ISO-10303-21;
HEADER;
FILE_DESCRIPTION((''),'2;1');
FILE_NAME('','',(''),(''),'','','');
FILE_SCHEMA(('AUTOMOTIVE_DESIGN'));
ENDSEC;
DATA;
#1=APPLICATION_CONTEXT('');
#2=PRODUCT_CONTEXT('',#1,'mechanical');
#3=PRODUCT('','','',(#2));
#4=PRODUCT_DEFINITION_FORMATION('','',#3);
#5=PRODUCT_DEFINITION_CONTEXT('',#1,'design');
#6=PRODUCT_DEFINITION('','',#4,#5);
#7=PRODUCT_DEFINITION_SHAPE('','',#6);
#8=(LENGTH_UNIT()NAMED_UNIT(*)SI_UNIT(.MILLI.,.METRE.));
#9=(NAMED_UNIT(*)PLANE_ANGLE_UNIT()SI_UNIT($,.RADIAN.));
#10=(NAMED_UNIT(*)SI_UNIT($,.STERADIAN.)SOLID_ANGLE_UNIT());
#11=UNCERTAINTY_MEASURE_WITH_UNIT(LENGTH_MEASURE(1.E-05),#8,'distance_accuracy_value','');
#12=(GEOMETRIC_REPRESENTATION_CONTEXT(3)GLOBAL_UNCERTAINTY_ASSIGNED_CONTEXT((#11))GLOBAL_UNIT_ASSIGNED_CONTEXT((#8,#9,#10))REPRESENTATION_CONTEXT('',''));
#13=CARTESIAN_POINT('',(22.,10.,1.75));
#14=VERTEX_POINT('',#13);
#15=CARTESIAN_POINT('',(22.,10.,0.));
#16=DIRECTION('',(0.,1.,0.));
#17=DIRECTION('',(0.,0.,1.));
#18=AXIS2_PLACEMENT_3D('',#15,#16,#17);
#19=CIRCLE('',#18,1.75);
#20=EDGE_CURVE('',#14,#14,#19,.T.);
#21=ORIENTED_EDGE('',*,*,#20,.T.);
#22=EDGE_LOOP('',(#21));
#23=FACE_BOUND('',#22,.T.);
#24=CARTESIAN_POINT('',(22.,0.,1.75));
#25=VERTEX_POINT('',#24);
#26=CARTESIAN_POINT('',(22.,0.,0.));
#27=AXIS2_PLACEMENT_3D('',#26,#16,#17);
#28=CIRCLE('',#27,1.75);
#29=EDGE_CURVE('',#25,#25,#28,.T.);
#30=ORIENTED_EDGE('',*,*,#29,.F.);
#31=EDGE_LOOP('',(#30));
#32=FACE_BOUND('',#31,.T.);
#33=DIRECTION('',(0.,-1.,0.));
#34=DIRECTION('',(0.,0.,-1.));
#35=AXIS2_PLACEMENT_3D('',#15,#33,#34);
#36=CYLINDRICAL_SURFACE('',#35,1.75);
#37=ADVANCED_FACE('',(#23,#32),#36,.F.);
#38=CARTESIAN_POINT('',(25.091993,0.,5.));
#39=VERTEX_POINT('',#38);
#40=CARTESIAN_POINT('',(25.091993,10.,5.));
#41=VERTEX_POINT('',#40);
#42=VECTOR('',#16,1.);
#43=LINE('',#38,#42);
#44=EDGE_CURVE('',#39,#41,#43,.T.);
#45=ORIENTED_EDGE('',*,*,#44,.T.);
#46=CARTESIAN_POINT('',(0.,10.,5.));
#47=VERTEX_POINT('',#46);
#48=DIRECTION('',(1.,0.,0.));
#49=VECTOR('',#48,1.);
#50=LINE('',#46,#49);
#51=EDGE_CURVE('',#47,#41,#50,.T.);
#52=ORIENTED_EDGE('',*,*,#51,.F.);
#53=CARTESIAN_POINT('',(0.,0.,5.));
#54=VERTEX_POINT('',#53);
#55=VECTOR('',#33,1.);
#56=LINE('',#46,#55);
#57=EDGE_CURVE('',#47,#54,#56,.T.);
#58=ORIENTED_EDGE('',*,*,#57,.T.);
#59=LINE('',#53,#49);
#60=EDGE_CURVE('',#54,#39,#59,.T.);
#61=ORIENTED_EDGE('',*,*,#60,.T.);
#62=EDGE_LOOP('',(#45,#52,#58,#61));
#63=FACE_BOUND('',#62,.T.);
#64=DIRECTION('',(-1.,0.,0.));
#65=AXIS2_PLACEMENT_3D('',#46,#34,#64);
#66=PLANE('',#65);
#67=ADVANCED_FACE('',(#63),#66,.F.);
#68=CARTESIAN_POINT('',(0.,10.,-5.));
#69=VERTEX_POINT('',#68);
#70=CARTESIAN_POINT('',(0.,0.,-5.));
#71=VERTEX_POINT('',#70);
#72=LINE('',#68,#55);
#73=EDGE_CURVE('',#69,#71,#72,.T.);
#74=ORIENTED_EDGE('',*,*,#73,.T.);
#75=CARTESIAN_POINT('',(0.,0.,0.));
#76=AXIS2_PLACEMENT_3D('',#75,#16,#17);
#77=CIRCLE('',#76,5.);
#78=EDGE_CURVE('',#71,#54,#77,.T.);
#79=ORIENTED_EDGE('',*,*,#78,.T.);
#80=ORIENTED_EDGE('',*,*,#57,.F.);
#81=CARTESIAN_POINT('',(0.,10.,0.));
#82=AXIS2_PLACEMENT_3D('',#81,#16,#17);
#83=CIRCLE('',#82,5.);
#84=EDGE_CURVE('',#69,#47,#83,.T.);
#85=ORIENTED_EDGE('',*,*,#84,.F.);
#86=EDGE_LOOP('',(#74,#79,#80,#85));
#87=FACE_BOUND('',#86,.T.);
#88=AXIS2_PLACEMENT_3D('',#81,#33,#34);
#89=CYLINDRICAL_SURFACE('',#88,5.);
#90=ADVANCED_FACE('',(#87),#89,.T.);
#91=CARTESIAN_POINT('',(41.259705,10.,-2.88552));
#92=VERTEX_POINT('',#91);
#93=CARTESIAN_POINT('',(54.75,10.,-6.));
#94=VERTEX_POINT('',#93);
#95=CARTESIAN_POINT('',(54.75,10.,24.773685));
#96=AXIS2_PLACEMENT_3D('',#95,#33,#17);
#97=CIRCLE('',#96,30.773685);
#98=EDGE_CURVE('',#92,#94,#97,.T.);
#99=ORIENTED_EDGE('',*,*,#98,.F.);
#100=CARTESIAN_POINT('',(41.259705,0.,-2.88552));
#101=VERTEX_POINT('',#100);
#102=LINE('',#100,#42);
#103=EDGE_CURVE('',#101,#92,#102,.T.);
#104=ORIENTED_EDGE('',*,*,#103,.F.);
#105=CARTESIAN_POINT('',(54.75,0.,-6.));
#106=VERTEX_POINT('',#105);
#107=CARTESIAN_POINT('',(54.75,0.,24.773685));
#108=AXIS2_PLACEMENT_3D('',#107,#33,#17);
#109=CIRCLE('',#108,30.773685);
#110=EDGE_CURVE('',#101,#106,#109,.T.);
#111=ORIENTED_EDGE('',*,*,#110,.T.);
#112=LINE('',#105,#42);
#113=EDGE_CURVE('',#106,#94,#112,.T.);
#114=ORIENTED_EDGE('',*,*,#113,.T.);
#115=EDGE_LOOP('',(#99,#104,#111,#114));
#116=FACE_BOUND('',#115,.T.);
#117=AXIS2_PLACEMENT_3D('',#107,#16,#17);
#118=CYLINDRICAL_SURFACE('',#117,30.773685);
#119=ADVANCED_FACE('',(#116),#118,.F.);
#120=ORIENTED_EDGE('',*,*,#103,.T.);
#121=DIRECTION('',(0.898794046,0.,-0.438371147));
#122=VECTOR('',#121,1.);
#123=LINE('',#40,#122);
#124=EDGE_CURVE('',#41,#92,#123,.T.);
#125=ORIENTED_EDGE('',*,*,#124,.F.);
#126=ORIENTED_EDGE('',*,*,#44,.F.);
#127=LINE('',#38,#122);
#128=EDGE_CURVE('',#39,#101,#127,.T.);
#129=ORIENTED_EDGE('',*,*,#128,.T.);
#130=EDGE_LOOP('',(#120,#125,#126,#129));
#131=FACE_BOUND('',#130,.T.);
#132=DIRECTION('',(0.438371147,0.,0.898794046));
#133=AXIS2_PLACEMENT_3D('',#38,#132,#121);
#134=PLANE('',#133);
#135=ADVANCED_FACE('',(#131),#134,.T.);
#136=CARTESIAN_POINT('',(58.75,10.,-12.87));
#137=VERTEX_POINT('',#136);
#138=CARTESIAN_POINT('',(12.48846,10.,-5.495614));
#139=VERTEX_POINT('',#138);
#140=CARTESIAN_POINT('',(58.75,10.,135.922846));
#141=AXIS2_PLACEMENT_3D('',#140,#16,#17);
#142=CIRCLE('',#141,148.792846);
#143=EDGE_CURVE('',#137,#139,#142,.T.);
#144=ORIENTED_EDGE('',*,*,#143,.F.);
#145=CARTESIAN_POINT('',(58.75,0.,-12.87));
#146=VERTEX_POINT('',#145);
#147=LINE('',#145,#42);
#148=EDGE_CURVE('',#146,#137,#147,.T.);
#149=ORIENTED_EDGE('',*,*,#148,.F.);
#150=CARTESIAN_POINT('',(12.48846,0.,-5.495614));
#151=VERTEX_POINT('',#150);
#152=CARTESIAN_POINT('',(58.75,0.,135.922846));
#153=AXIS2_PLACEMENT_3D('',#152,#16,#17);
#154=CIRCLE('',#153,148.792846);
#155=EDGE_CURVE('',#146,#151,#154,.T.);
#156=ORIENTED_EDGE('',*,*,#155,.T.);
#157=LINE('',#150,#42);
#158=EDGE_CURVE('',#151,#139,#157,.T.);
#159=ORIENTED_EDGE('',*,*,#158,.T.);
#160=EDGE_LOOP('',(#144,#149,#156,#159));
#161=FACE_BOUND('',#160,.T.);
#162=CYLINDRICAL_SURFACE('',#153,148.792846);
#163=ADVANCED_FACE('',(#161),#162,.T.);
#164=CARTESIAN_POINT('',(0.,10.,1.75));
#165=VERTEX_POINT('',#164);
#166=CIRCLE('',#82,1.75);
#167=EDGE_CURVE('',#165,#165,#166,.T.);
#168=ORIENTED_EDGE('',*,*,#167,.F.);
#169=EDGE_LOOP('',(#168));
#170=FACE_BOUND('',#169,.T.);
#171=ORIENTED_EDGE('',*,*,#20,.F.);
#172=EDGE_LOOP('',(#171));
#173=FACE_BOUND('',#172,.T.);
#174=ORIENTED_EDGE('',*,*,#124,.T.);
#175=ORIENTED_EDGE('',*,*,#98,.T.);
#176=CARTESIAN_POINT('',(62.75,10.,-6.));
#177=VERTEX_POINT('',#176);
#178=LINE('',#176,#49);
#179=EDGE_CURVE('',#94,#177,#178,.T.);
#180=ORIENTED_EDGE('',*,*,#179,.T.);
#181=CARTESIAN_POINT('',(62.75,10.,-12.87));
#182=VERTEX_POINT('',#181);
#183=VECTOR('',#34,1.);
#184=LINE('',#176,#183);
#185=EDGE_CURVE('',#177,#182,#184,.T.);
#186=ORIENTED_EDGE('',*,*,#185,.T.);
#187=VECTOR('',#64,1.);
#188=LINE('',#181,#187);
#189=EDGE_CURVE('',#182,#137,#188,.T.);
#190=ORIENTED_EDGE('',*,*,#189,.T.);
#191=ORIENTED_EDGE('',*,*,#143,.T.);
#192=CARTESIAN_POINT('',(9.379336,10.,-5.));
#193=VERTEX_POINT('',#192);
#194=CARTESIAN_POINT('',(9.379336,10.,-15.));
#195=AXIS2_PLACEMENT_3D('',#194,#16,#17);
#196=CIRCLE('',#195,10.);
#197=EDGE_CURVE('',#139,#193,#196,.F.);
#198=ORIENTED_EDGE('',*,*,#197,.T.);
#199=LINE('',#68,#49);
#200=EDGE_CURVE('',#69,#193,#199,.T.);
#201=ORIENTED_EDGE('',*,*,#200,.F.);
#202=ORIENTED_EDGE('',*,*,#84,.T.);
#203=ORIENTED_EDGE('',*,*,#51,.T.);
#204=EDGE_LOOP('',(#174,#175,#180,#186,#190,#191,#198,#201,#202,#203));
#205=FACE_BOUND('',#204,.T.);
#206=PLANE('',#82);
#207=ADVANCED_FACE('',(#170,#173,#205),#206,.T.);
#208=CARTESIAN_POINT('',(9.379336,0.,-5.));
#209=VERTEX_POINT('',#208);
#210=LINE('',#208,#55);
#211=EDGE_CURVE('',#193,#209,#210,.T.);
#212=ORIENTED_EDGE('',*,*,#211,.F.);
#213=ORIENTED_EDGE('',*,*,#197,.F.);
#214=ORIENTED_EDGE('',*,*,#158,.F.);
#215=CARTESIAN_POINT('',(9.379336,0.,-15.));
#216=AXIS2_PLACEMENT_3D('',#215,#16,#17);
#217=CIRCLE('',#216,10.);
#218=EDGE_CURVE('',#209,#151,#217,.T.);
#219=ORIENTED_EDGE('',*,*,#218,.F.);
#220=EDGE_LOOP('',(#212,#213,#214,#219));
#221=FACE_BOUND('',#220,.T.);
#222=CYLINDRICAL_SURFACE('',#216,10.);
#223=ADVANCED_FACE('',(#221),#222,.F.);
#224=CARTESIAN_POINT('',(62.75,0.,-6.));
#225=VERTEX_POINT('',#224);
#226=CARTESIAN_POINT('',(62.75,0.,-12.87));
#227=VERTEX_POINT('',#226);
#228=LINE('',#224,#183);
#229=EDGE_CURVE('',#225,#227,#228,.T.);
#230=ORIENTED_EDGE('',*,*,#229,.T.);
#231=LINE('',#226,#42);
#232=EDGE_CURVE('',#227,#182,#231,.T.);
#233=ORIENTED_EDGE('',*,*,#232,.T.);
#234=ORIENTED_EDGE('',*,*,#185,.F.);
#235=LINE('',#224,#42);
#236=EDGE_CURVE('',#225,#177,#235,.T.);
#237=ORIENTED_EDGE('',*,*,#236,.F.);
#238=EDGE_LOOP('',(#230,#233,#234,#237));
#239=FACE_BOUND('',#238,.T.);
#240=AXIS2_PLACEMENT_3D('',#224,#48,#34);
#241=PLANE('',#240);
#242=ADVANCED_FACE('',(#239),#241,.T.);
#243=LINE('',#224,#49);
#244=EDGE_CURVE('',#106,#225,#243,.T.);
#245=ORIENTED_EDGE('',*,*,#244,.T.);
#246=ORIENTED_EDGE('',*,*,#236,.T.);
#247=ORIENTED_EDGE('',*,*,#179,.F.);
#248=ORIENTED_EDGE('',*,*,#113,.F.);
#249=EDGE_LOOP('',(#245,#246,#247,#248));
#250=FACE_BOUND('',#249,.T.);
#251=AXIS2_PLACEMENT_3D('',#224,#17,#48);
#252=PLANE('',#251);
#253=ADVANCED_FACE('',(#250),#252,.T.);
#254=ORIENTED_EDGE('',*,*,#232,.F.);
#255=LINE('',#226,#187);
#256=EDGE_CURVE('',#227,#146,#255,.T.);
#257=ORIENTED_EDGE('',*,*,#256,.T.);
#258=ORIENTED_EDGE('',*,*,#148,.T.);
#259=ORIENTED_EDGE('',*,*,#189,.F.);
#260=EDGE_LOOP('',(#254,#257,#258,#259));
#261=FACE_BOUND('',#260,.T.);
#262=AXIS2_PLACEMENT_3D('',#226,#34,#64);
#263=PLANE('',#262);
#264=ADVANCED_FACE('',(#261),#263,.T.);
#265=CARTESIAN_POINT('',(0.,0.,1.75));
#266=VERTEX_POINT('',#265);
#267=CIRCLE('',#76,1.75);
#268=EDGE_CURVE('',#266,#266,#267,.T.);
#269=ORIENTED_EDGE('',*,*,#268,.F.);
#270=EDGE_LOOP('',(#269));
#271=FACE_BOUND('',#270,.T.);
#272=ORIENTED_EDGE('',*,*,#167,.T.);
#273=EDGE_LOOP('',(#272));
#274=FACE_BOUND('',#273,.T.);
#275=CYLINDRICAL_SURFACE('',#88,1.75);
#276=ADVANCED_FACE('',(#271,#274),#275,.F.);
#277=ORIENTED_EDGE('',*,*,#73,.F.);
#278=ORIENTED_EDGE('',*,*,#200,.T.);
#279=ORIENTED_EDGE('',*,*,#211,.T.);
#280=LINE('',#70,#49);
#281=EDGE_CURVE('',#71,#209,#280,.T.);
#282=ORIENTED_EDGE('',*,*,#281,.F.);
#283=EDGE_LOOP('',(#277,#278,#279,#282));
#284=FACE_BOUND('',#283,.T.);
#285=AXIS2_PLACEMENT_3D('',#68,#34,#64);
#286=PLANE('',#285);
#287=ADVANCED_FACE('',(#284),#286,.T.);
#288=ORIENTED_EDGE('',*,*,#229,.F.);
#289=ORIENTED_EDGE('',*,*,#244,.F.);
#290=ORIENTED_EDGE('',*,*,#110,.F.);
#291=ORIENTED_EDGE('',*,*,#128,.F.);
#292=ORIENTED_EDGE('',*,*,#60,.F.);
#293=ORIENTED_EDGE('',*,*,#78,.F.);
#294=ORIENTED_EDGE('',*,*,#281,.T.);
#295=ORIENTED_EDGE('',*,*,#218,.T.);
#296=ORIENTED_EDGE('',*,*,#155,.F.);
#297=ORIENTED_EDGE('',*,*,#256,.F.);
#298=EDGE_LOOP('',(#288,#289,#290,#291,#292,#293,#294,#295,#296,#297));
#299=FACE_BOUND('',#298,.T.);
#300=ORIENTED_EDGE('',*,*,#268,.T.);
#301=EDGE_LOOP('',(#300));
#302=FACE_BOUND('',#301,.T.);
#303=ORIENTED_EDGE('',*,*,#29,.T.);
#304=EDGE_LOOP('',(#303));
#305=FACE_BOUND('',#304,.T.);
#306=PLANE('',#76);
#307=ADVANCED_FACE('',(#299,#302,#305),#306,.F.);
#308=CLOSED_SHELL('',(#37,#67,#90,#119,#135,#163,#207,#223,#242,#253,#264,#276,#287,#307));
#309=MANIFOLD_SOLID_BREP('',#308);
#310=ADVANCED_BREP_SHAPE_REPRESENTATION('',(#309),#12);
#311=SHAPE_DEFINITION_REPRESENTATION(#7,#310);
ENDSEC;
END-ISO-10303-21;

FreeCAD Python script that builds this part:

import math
import FreeCAD as App
import Part
import Sketcher
Q = App.Units.Quantity


def edges_at(feature, points):
    """Names of the edges that pass closest to the given points."""
    edges = feature.Shape.Edges
    near = lambda p: min(range(len(edges)), key=lambda i: edges[i].distToShape(Part.Vertex(*p))[0])
    return sorted({f"Edge{near(p) + 1}" for p in points})

doc = App.newDocument("Part")
body = doc.addObject("PartDesign::Body", "Body")

sketch1 = body.newObject("Sketcher::SketchObject", "Sketch")
sketch1.AttachmentSupport = (doc.getObject("XZ_Plane"), [""])
sketch1.MapMode = "FlatFace"
sketch1.addGeometry(Part.ArcOfCircle(Part.Circle(App.Vector(0, 0, 0), App.Vector(0, 0, 1), 5), math.radians(90), math.radians(270)), False)
sketch1.addGeometry(Part.LineSegment(App.Vector(0, 5, 0), App.Vector(22, 5, 0)), False)
sketch1.addGeometry(Part.ArcOfCircle(Part.Circle(App.Vector(22, 0, 0), App.Vector(0, 0, 1), 5), math.radians(-90), math.radians(90)), False)
sketch1.addGeometry(Part.LineSegment(App.Vector(22, -5, 0), App.Vector(0, -5, 0)), False)
sketch1.addGeometry(Part.Circle(App.Vector(0, 0, 0), App.Vector(0, 0, 1), 1.8), False)
sketch1.addGeometry(Part.Circle(App.Vector(22, 0, 0), App.Vector(0, 0, 1), 1.8), False)
sketch1.addConstraint(Sketcher.Constraint("Tangent", 0, 1, 1, 1))
sketch1.addConstraint(Sketcher.Constraint("Tangent", 1, 2, 2, 2))
sketch1.addConstraint(Sketcher.Constraint("Tangent", 2, 1, 3, 1))
sketch1.addConstraint(Sketcher.Constraint("Tangent", 3, 2, 0, 2))
sketch1.addConstraint(Sketcher.Constraint("Horizontal", 1))
sketch1.addConstraint(Sketcher.Constraint("Horizontal", 3))
sketch1.addConstraint(Sketcher.Constraint("Coincident", 0, 3, -1, 1))
sketch1.addConstraint(Sketcher.Constraint("Coincident", 4, 3, -1, 1))
sketch1.addConstraint(Sketcher.Constraint("Coincident", 5, 3, 2, 3))
sketch1.addConstraint(Sketcher.Constraint("Equal", 4, 5))
sketch1.addConstraint(Sketcher.Constraint("Radius", 0, 5.0))
sketch1.addConstraint(Sketcher.Constraint("Diameter", 4, 3.5))
sketch1.addConstraint(Sketcher.Constraint("DistanceX", 1, 1, 1, 2, 22.0))
pad1 = body.newObject("PartDesign::Pad", "Pad")
pad1.Profile = sketch1
pad1.Length = 10
pad1.Reversed = True

sketch2 = body.newObject("Sketcher::SketchObject", "Sketch001")
sketch2.AttachmentSupport = (doc.getObject("XZ_Plane"), [""])
sketch2.MapMode = "FlatFace"
sketch2.addGeometry(Part.LineSegment(App.Vector(22, 5, 0), App.Vector(25.1, 5, 0)), False)
sketch2.addGeometry(Part.LineSegment(App.Vector(25.1, 5, 0), App.Vector(41.3, -2.9, 0)), False)
sketch2.addGeometry(Part.ArcOfCircle(Part.Circle(App.Vector(54.8, 24.8, 0), App.Vector(0, 0, 1), 30.8), math.radians(-116), math.radians(-90)), False)
sketch2.addGeometry(Part.LineSegment(App.Vector(54.8, -6, 0), App.Vector(62.8, -6, 0)), False)
sketch2.addGeometry(Part.LineSegment(App.Vector(62.8, -6, 0), App.Vector(62.8, -12.9, 0)), False)
sketch2.addGeometry(Part.LineSegment(App.Vector(62.8, -12.9, 0), App.Vector(58.8, -12.9, 0)), False)
sketch2.addGeometry(Part.ArcOfCircle(Part.Circle(App.Vector(58.7, 135.9, 0), App.Vector(0, 0, 1), 148.8), math.radians(-108.72), math.radians(-90)), False)
sketch2.addGeometry(Part.LineSegment(App.Vector(11, -5, 0), App.Vector(22, -5, 0)), False)
sketch2.addGeometry(Part.ArcOfCircle(Part.Circle(App.Vector(22, 0, 0), App.Vector(0, 0, 1), 5), math.radians(-90), math.radians(90)), False)
sketch2.addConstraint(Sketcher.Constraint("Coincident", 0, 2, 1, 1))
sketch2.addConstraint(Sketcher.Constraint("Tangent", 1, 2, 2, 1))
sketch2.addConstraint(Sketcher.Constraint("Tangent", 2, 2, 3, 1))
sketch2.addConstraint(Sketcher.Constraint("Coincident", 3, 2, 4, 1))
sketch2.addConstraint(Sketcher.Constraint("Coincident", 4, 2, 5, 1))
sketch2.addConstraint(Sketcher.Constraint("Tangent", 5, 2, 6, 2))
sketch2.addConstraint(Sketcher.Constraint("Coincident", 6, 1, 7, 1))
sketch2.addConstraint(Sketcher.Constraint("Tangent", 7, 2, 8, 1))
sketch2.addConstraint(Sketcher.Constraint("Tangent", 8, 2, 0, 1))
sketch2.addConstraint(Sketcher.Constraint("Horizontal", 0))
sketch2.addConstraint(Sketcher.Constraint("Horizontal", 3))
sketch2.addConstraint(Sketcher.Constraint("Vertical", 4))
sketch2.addConstraint(Sketcher.Constraint("Horizontal", 5))
sketch2.addConstraint(Sketcher.Constraint("Horizontal", 7))
sketch2.addConstraint(Sketcher.Constraint("PointOnObject", 8, 3, -1))
sketch2.addConstraint(Sketcher.Constraint("Radius", 8, 5.0))
sketch2.addConstraint(Sketcher.Constraint("DistanceX", 3, 1, 3, 2, 8.0))
sketch2.addConstraint(Sketcher.Constraint("DistanceX", 5, 2, 5, 1, 4.0))
sketch2.addConstraint(Sketcher.Constraint("DistanceX", 7, 1, 7, 2, 11.0))
sketch2.addConstraint(Sketcher.Constraint("Angle", 1, Q("-26 deg")))
sketch2.addConstraint(Sketcher.Constraint("DistanceX", -1, 1, 8, 3, 22.0))
sketch2.addConstraint(Sketcher.Constraint("DistanceY", 2, 2, -1, 1, 6.0))
sketch2.addConstraint(Sketcher.Constraint("DistanceY", 4, 2, 4, 1, 6.87))
sketch2.addConstraint(Sketcher.Constraint("DistanceX", -1, 1, 2, 3, 54.75))
sketch2.addConstraint(Sketcher.Constraint("Radius", 2, 30.773685))
pad2 = body.newObject("PartDesign::Pad", "Pad001")
pad2.Profile = sketch2
pad2.Length = 10
pad2.Reversed = True
doc.recompute()

fillet = body.newObject("PartDesign::Fillet", "Fillet")
fillet.Base = (pad2, edges_at(pad2, [(11, 5, -5)]))
fillet.Radius = 10

doc.recompute()
